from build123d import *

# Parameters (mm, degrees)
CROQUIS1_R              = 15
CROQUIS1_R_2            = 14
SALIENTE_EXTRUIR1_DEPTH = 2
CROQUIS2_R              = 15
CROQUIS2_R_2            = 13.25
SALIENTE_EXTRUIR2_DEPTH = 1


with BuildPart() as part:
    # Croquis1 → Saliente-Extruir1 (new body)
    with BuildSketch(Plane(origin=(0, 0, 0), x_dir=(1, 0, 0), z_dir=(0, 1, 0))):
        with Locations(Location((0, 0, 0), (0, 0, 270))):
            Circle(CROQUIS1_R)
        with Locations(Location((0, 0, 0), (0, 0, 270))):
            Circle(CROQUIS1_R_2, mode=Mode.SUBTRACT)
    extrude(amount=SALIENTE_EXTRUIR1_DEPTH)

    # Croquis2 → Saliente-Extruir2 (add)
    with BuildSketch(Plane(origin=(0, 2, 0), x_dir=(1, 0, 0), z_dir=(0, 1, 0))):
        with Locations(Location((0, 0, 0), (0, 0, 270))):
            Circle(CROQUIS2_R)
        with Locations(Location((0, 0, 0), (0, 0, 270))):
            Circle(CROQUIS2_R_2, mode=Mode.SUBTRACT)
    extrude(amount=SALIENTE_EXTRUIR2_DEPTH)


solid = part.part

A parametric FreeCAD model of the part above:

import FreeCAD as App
import Part
import Sketcher

V = App.Vector
Q = App.Units.Quantity

doc = App.newDocument("Part")
params = doc.addObject("Spreadsheet::Sheet", "Params")
for row, (alias, value) in enumerate([
    ("sketch1_diameter", "30 mm"),
    ("sketch1_diameter2", "28 mm"),
    ("pad1_length", "2 mm"),
    ("sketch2_diameter", "30 mm"),
    ("sketch2_diameter2", "26.5 mm"),
    ("pad2_length", "1 mm"),
], start=1):
    params.set(f"A{row}", alias)
    params.set(f"B{row}", "=" + value)
    params.setAlias(f"B{row}", alias)

body = doc.addObject("PartDesign::Body", "Body")

sketch1 = body.newObject("Sketcher::SketchObject", "Sketch")
sketch1.AttachmentSupport = (doc.getObject("XZ_Plane"), [""])
sketch1.MapMode = "FlatFace"
sketch1.addGeometry([
    Part.Circle(V(0, 0, 0), V(0, 0, 1), 15),
    Part.Circle(V(0, 0, 0), V(0, 0, 1), 14),
], False)
sketch1.addConstraint([
    Sketcher.Constraint("Coincident", 0, 3, -1, 1),
    Sketcher.Constraint("Coincident", 1, 3, -1, 1),
    Sketcher.Constraint("Diameter", 0, Q("30 mm")),
    Sketcher.Constraint("Diameter", 1, Q("28 mm")),
])
sketch1.setExpression("Constraints[2]", "Params.sketch1_diameter")
sketch1.setExpression("Constraints[3]", "Params.sketch1_diameter2")
pad1 = body.newObject("PartDesign::Pad", "Pad")
pad1.Profile = sketch1
pad1.setExpression("Length", "Params.pad1_length")
pad1.Reversed = True

sketch2 = body.newObject("Sketcher::SketchObject", "Sketch001")
sketch2.AttachmentSupport = (doc.getObject("XZ_Plane"), [""])
sketch2.MapMode = "FlatFace"
sketch2.AttachmentOffset = App.Placement(V(0, 0, -2), App.Rotation())
sketch2.addGeometry([
    Part.Circle(V(0, 0, 0), V(0, 0, 1), 15),
    Part.Circle(V(0, 0, 0), V(0, 0, 1), 13),
], False)
sketch2.addConstraint([
    Sketcher.Constraint("Coincident", 0, 3, -1, 1),
    Sketcher.Constraint("Coincident", 1, 3, -1, 1),
    Sketcher.Constraint("Diameter", 0, Q("30 mm")),
    Sketcher.Constraint("Diameter", 1, Q("26.5 mm")),
])
sketch2.setExpression("Constraints[2]", "Params.sketch2_diameter")
sketch2.setExpression("Constraints[3]", "Params.sketch2_diameter2")
pad2 = body.newObject("PartDesign::Pad", "Pad001")
pad2.Profile = sketch2
pad2.setExpression("Length", "Params.pad2_length")
pad2.Reversed = True

doc.recompute()
